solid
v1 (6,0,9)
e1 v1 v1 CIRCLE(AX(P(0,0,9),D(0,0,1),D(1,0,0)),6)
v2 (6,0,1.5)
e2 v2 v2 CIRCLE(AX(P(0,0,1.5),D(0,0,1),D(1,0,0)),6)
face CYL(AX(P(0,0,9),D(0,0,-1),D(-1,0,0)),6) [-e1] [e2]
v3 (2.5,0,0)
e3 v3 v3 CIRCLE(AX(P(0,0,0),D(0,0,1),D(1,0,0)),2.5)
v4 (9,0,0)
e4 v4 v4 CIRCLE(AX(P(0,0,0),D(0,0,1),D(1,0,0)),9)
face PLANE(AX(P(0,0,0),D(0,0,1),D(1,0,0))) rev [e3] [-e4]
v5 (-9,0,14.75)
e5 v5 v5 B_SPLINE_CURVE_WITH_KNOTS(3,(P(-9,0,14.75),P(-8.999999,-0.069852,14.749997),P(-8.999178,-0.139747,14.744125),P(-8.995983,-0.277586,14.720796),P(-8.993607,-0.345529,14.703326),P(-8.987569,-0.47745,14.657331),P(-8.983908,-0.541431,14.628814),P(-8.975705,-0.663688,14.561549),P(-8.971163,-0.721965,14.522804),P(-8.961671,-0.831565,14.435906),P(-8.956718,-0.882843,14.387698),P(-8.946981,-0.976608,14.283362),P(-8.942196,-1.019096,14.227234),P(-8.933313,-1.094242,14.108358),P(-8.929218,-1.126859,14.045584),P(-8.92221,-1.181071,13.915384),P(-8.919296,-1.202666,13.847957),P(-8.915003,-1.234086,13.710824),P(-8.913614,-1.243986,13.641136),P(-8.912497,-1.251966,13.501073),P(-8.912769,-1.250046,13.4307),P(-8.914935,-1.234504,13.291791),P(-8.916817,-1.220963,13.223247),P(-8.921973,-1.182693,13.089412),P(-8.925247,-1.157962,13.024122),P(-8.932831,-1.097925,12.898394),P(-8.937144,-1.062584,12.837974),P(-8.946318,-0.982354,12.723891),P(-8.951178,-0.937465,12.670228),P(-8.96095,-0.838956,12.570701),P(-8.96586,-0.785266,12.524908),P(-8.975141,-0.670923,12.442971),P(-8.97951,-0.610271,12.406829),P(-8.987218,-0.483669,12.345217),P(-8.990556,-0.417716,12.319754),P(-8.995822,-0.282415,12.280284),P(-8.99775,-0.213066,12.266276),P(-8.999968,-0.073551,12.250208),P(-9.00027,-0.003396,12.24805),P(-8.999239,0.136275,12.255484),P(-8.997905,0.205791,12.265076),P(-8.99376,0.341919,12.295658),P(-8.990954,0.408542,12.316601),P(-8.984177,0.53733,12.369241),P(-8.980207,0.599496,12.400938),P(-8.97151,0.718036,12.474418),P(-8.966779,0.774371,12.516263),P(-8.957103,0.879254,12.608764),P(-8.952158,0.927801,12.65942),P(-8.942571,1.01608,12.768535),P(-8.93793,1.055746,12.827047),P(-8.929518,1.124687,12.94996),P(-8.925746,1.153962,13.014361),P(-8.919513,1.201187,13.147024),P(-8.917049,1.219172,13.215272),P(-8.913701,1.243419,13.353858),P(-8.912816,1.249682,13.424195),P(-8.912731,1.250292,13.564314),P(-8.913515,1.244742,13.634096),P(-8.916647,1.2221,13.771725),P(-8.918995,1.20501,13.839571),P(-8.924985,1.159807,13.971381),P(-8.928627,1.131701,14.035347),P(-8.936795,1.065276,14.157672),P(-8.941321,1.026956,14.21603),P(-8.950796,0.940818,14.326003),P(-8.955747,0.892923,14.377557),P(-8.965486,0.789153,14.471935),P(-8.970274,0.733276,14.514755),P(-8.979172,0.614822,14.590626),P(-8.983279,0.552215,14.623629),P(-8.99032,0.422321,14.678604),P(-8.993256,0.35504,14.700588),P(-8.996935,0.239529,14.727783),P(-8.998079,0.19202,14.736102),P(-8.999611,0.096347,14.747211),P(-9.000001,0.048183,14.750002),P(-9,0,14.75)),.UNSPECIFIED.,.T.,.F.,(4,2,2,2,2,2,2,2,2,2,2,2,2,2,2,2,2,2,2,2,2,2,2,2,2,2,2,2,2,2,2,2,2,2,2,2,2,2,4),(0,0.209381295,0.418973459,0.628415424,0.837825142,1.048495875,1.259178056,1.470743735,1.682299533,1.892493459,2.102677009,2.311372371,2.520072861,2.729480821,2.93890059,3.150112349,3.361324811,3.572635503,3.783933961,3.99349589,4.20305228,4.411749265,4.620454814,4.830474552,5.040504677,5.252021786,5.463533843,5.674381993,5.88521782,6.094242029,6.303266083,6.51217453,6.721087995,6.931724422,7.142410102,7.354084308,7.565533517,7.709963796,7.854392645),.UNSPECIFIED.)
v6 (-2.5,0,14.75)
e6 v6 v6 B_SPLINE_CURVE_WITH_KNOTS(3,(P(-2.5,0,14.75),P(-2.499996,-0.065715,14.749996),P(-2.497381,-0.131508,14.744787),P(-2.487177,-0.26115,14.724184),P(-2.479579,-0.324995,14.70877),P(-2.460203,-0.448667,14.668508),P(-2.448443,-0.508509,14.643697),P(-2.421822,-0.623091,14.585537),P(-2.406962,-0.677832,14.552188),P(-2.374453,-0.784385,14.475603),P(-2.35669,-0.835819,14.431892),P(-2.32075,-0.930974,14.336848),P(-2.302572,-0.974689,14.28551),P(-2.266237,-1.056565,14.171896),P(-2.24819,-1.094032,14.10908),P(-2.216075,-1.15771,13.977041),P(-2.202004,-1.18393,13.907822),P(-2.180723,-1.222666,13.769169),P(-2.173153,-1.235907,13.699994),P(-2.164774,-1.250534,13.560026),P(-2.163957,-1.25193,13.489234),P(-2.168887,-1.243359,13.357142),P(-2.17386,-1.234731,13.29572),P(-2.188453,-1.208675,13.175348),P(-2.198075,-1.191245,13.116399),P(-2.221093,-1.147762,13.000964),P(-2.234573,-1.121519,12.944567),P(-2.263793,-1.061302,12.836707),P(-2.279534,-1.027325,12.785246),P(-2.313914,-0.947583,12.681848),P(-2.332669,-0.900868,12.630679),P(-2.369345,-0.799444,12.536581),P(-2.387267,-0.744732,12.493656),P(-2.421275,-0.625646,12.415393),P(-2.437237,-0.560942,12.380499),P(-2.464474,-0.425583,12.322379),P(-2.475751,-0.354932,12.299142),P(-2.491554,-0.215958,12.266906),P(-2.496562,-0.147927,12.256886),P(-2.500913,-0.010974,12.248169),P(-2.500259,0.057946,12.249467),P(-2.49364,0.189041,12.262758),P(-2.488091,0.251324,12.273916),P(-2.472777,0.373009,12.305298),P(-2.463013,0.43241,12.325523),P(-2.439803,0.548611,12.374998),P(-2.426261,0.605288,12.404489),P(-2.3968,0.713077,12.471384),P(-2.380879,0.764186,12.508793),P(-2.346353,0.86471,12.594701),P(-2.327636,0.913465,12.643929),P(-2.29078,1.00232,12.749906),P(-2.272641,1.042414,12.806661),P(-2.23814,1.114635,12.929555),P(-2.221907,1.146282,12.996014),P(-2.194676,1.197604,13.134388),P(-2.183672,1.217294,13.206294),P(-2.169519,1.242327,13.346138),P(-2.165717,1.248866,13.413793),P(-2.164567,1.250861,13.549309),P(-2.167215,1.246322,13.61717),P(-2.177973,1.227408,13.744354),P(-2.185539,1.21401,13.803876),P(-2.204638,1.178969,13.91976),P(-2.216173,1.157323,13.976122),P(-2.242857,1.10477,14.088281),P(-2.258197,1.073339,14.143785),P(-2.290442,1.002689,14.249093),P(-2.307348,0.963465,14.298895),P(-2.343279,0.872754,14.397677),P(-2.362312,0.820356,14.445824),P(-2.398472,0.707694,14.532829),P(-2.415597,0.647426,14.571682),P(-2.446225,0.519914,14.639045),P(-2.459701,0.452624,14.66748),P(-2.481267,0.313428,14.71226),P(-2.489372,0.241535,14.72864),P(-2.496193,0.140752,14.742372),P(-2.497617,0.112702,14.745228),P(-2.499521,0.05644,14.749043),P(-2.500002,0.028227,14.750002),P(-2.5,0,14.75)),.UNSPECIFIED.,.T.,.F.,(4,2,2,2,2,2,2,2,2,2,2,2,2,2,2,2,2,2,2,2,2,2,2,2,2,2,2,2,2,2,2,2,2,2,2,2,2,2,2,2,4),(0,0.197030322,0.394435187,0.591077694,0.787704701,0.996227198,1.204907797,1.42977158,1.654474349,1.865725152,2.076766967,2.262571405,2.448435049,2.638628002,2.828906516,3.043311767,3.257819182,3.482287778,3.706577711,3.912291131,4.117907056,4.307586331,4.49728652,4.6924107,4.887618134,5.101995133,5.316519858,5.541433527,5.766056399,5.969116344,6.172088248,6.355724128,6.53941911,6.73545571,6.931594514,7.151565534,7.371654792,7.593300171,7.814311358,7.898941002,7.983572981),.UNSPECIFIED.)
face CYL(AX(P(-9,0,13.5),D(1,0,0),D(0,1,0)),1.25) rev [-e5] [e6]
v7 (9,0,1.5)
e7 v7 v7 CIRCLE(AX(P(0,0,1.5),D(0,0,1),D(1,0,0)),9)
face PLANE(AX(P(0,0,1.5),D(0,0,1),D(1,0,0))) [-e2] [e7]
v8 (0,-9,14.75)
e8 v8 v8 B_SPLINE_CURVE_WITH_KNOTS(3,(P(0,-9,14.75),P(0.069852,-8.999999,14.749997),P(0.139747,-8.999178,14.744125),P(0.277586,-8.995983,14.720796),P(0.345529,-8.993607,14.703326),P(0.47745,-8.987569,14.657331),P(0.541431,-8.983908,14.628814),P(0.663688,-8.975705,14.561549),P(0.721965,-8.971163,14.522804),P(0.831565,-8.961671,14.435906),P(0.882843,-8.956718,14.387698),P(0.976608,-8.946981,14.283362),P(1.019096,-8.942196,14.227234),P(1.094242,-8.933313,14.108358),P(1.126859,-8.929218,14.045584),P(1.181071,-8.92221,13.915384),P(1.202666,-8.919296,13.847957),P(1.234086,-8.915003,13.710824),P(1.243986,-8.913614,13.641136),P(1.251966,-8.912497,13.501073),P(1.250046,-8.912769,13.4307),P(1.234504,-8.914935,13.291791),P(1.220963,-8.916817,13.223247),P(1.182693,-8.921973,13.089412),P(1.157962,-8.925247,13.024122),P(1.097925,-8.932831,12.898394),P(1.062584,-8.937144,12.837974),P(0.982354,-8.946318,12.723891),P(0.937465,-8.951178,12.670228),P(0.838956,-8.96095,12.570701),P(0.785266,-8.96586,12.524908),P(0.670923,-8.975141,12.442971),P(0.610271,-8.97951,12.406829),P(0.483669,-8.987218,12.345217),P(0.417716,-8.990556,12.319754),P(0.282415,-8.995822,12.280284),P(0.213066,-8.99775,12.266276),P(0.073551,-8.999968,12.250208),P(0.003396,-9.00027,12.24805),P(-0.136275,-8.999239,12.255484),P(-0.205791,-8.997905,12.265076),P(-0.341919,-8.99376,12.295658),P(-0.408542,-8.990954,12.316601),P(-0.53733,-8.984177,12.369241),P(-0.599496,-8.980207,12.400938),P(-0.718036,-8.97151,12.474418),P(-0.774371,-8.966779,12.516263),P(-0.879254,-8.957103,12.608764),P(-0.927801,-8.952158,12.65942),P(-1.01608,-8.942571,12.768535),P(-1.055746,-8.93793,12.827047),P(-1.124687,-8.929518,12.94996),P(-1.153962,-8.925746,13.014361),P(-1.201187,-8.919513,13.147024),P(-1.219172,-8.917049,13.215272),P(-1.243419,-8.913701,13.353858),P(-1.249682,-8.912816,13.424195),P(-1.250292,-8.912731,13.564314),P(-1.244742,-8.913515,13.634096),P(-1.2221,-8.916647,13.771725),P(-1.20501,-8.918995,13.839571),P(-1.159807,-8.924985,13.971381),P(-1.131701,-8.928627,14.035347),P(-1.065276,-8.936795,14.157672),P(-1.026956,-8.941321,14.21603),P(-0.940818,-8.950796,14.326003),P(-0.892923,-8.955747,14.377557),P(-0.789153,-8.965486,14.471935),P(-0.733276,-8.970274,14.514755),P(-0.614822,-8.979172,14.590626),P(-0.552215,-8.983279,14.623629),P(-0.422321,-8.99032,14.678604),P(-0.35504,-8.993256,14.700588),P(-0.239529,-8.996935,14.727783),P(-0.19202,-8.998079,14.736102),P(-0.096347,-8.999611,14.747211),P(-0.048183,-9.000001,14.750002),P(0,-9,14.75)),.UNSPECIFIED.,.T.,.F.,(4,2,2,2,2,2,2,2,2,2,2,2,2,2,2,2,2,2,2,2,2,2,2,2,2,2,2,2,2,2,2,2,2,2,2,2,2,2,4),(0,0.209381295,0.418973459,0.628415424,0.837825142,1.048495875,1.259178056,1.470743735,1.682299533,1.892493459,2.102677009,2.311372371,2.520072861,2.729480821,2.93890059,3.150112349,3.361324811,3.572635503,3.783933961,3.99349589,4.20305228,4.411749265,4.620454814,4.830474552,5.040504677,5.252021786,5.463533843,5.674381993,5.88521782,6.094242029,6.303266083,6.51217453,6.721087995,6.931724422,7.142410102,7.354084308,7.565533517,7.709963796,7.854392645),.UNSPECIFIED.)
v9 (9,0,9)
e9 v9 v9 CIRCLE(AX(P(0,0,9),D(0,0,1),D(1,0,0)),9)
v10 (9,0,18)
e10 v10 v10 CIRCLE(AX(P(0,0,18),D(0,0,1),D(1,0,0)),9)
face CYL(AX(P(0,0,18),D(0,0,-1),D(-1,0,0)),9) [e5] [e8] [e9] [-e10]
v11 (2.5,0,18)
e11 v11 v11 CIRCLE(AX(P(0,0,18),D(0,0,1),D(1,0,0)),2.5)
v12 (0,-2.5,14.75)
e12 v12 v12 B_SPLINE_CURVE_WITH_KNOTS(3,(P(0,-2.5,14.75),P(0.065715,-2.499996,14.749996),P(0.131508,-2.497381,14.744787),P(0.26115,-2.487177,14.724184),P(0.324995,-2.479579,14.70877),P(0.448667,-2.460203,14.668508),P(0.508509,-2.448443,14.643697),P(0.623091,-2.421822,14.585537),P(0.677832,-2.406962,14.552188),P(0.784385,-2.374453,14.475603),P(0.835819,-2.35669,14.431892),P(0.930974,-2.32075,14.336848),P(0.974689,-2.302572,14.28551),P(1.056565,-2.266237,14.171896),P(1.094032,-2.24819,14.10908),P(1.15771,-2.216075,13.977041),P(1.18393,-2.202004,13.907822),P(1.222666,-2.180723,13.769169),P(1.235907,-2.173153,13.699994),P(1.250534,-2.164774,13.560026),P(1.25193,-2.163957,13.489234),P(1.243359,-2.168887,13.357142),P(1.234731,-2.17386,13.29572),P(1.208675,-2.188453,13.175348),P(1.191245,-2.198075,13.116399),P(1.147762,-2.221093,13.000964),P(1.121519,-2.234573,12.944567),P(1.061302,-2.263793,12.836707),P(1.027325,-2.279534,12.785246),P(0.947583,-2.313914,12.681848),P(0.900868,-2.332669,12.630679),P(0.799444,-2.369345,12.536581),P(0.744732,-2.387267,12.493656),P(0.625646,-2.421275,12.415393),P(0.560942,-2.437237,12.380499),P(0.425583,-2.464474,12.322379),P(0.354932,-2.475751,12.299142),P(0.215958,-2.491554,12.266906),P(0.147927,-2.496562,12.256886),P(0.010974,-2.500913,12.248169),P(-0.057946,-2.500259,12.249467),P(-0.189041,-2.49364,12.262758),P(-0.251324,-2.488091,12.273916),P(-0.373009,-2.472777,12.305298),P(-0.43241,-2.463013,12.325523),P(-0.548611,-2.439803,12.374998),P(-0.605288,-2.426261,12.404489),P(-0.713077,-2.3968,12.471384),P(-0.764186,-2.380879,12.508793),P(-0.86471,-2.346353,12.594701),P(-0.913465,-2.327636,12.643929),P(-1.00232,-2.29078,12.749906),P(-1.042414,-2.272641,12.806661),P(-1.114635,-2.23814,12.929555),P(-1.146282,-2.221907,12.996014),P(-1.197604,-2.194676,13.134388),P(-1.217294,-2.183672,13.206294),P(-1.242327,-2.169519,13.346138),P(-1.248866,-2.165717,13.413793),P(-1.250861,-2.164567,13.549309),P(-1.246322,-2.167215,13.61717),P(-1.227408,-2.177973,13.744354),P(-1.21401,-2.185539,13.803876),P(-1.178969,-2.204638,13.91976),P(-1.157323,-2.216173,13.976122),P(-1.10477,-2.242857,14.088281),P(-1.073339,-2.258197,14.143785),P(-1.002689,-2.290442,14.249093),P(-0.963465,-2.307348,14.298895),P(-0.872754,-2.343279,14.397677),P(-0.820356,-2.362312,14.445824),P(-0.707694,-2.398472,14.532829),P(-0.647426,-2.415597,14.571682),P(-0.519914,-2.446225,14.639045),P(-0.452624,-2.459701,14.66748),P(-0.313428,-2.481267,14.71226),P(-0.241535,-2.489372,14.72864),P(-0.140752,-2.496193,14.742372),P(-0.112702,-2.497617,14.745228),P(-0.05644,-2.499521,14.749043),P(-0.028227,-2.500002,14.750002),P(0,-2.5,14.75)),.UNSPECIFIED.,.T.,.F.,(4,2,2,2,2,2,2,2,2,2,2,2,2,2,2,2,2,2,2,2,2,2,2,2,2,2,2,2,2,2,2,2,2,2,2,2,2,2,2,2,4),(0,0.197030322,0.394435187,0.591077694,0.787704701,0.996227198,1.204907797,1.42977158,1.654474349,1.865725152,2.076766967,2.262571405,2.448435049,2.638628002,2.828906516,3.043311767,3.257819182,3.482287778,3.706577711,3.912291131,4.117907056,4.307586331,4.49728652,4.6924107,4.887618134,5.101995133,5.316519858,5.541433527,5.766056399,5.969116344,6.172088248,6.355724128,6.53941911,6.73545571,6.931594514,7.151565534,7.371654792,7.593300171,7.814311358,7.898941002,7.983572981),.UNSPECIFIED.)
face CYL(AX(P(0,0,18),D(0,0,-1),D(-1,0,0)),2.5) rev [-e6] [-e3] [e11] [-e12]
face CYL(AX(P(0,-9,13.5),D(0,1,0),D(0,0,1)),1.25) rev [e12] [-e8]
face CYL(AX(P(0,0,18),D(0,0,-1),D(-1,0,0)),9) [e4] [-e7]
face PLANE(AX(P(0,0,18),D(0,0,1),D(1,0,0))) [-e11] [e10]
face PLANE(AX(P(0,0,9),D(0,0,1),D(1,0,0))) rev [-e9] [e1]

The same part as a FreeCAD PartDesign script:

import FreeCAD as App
import Part
import Sketcher

V = App.Vector
Q = App.Units.Quantity

doc = App.newDocument("Part")
body = doc.addObject("PartDesign::Body", "Body")

sketch1 = body.newObject("Sketcher::SketchObject", "Sketch")
sketch1.AttachmentSupport = (doc.getObject("XY_Plane"), [""])
sketch1.MapMode = "FlatFace"
sketch1.addGeometry(Part.Circle(V(0, 0, 0), V(0, 0, 1), 9), False)
sketch1.addConstraint(Sketcher.Constraint("Coincident", 0, 3, -1, 1))
sketch1.addConstraint(Sketcher.Constraint("Diameter", 0, Q("18 mm")))
pad1 = body.newObject("PartDesign::Pad", "Pad")
pad1.Profile = sketch1
pad1.Length = 18

sketch2 = body.newObject("Sketcher::SketchObject", "Sketch001")
sketch2.AttachmentSupport = (doc.getObject("XY_Plane"), [""])
sketch2.MapMode = "FlatFace"
sketch2.AttachmentOffset = App.Placement(V(0, 0, 1.5), App.Rotation())
sketch2.addGeometry(Part.Circle(V(0, 0, 0), V(0, 0, 1), 9), False)
sketch2.addGeometry(Part.Circle(V(0, 0, 0), V(0, 0, 1), 6), False)
sketch2.addConstraint(Sketcher.Constraint("Coincident", 0, 3, -1, 1))
sketch2.addConstraint(Sketcher.Constraint("Coincident", 1, 3, -1, 1))
sketch2.addConstraint(Sketcher.Constraint("Diameter", 0, Q("18 mm")))
sketch2.addConstraint(Sketcher.Constraint("Diameter", 1, Q("12 mm")))
pocket1 = body.newObject("PartDesign::Pocket", "Pocket")
pocket1.Profile = sketch2
pocket1.Length = 7.5
pocket1.Reversed = True

sketch3 = body.newObject("Sketcher::SketchObject", "Sketch002")
sketch3.AttachmentSupport = (doc.getObject("XY_Plane"), [""])
sketch3.MapMode = "FlatFace"
sketch3.addGeometry(Part.Circle(V(0, 0, 0), V(0, 0, 1), 2.5), False)
sketch3.addConstraint(Sketcher.Constraint("Coincident", 0, 3, -1, 1))
sketch3.addConstraint(Sketcher.Constraint("Diameter", 0, Q("5 mm")))
pocket2 = body.newObject("PartDesign::Pocket", "Pocket001")
pocket2.Profile = sketch3
pocket2.Type = "ThroughAll"
pocket2.Reversed = True

sketch4 = body.newObject("Sketcher::SketchObject", "Sketch003")
sketch4.AttachmentSupport = (doc.getObject("XZ_Plane"), [""])
sketch4.MapMode = "FlatFace"
sketch4.addGeometry(Part.Circle(V(0, 13.5, 0), V(0, 0, 1), 1.2), False)
sketch4.addConstraint(Sketcher.Constraint("PointOnObject", 0, 3, -2))
sketch4.addConstraint(Sketcher.Constraint("Diameter", 0, Q("2.5 mm")))
sketch4.addConstraint(Sketcher.Constraint("DistanceY", -1, 1, 0, 3, Q("13.5 mm")))
pocket3 = body.newObject("PartDesign::Pocket", "Pocket002")
pocket3.Profile = sketch4
pocket3.Type = "ThroughAll"
pocket3.Reversed = True
doc.recompute()

polarpattern = body.newObject("PartDesign::PolarPattern", "PolarPattern")
polarpattern.Originals = [pocket3]
polarpattern.Axis = (doc.getObject("Z_Axis"), [""])
polarpattern.Angle = 90
polarpattern.Occurrences = 2
polarpattern.Reversed = True
body.Tip = polarpattern

doc.recompute()
